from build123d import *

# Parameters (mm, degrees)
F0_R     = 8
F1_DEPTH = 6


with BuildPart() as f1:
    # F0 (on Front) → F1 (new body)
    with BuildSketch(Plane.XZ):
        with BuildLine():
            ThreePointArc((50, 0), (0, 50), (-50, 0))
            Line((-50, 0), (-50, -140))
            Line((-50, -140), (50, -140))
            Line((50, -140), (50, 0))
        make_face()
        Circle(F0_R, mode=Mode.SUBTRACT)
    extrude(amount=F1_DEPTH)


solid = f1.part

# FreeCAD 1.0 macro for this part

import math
import FreeCAD as App
import Part
import Sketcher
Q = App.Units.Quantity

doc = App.newDocument("Part")
body = doc.addObject("PartDesign::Body", "Body")

sketch1 = body.newObject("Sketcher::SketchObject", "Sketch")
sketch1.AttachmentSupport = (doc.getObject("XZ_Plane"), [""])
sketch1.MapMode = "FlatFace"
sketch1.addGeometry([
    Part.ArcOfCircle(Part.Circle(App.Vector(0, 0, 0), App.Vector(0, 0, 1), 50), math.radians(0), math.radians(180)),
    Part.LineSegment(App.Vector(-50, 0, 0), App.Vector(-50, -140, 0)),
    Part.LineSegment(App.Vector(-50, -140, 0), App.Vector(50, -140, 0)),
    Part.LineSegment(App.Vector(50, -140, 0), App.Vector(50, 0, 0)),
    Part.Circle(App.Vector(0, 0, 0), App.Vector(0, 0, 1), 8),
], False)
sketch1.addConstraint([
    Sketcher.Constraint("Tangent", 0, 2, 1, 1),
    Sketcher.Constraint("Coincident", 1, 2, 2, 1),
    Sketcher.Constraint("Coincident", 2, 2, 3, 1),
    Sketcher.Constraint("Tangent", 3, 2, 0, 1),
    Sketcher.Constraint("Vertical", 1),
    Sketcher.Constraint("Horizontal", 2),
    Sketcher.Constraint("Vertical", 3),
    Sketcher.Constraint("Coincident", 0, 3, -1, 1),
    Sketcher.Constraint("Coincident", 4, 3, -1, 1),
    Sketcher.Constraint("Diameter", 4, Q("16 mm")),
    Sketcher.Constraint("Radius", 0, Q("50 mm")),
    Sketcher.Constraint("DistanceY", 1, 2, 1, 1, Q("140 mm")),
])
pad1 = body.newObject("PartDesign::Pad", "Pad")
pad1.Profile = sketch1
pad1.Length = 6

doc.recompute()
